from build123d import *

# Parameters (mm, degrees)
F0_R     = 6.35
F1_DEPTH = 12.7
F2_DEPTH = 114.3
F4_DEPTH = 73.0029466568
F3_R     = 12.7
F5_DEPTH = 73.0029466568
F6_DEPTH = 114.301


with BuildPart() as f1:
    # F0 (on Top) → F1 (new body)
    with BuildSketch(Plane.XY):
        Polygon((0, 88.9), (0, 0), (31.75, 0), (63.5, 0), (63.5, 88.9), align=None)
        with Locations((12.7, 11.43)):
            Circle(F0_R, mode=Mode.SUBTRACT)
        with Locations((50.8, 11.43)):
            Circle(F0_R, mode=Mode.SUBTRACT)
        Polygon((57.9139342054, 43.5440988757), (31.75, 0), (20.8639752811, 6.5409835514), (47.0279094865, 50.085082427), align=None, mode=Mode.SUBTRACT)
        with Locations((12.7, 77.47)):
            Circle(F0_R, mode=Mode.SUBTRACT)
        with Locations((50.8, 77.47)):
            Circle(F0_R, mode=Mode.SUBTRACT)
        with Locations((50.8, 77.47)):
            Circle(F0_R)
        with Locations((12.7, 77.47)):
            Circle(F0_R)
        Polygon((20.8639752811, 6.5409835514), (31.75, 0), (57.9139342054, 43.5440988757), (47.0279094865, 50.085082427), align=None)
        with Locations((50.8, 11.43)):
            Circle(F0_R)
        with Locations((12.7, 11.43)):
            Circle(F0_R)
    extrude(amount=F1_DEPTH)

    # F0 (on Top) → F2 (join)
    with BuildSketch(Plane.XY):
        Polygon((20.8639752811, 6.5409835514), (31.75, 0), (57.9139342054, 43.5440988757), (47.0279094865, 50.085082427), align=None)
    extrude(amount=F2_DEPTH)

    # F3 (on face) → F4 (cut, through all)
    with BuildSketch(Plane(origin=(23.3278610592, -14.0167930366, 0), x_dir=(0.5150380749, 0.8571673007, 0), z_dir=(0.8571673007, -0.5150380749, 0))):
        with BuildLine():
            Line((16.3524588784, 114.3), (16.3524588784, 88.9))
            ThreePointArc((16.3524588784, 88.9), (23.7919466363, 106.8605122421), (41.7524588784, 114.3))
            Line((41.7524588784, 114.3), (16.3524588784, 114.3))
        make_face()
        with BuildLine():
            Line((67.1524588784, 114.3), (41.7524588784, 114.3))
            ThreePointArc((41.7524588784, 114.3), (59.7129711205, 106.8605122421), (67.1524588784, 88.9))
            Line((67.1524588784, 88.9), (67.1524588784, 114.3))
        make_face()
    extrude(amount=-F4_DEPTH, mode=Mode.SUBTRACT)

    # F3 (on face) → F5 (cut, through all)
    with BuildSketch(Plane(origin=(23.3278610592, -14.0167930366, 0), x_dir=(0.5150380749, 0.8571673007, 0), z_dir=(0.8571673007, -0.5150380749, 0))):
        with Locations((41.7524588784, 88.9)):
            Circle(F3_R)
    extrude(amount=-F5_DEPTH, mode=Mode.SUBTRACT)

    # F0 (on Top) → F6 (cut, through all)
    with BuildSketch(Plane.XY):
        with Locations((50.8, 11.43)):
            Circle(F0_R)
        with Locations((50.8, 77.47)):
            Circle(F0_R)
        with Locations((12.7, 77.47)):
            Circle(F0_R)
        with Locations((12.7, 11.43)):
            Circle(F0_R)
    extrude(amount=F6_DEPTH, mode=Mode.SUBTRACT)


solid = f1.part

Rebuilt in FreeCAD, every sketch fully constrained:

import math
import FreeCAD as App
import Part
import Sketcher
Q = App.Units.Quantity

doc = App.newDocument("Part")
body = doc.addObject("PartDesign::Body", "Body")

# Sketch on XY plane
sketch1 = body.newObject("Sketcher::SketchObject", "Sketch")
sketch1.AttachmentSupport = (doc.getObject("XY_Plane"), [""])
sketch1.MapMode = "FlatFace"
sketch1.addGeometry(Part.LineSegment(App.Vector(0, 0, 0), App.Vector(64, 0, 0)), False)
sketch1.addGeometry(Part.LineSegment(App.Vector(64, 0, 0), App.Vector(64, 89, 0)), False)
sketch1.addGeometry(Part.LineSegment(App.Vector(64, 89, 0), App.Vector(0, 89, 0)), False)
sketch1.addGeometry(Part.LineSegment(App.Vector(0, 89, 0), App.Vector(0, 0, 0)), False)
sketch1.addConstraint(Sketcher.Constraint("Coincident", 0, 2, 1, 1))
sketch1.addConstraint(Sketcher.Constraint("Coincident", 1, 2, 2, 1))
sketch1.addConstraint(Sketcher.Constraint("Coincident", 2, 2, 3, 1))
sketch1.addConstraint(Sketcher.Constraint("Coincident", 3, 2, 0, 1))
sketch1.addConstraint(Sketcher.Constraint("Horizontal", 0))
sketch1.addConstraint(Sketcher.Constraint("Vertical", 1))
sketch1.addConstraint(Sketcher.Constraint("Horizontal", 2))
sketch1.addConstraint(Sketcher.Constraint("Vertical", 3))
sketch1.addConstraint(Sketcher.Constraint("Coincident", 3, 2, -1, 1))
sketch1.addConstraint(Sketcher.Constraint("DistanceX", 0, 1, 0, 2, Q("2.5 in")))
sketch1.addConstraint(Sketcher.Constraint("DistanceY", 1, 1, 1, 2, Q("3.5 in")))
pad1 = body.newObject("PartDesign::Pad", "Pad")
pad1.Profile = sketch1
pad1.Length = Q("0.5 in")

# Sketch on XY plane
sketch2 = body.newObject("Sketcher::SketchObject", "Sketch001")
sketch2.AttachmentSupport = (doc.getObject("XY_Plane"), [""])
sketch2.MapMode = "FlatFace"
sketch2.addGeometry(Part.LineSegment(App.Vector(21, 7, 0), App.Vector(32, 0, 0)), False)
sketch2.addGeometry(Part.LineSegment(App.Vector(32, 0, 0), App.Vector(58, 44, 0)), False)
sketch2.addGeometry(Part.LineSegment(App.Vector(58, 44, 0), App.Vector(47, 50, 0)), False)
sketch2.addGeometry(Part.LineSegment(App.Vector(47, 50, 0), App.Vector(21, 7, 0)), False)
sketch2.addConstraint(Sketcher.Constraint("Coincident", 0, 2, 1, 1))
sketch2.addConstraint(Sketcher.Constraint("Coincident", 1, 2, 2, 1))
sketch2.addConstraint(Sketcher.Constraint("Coincident", 2, 2, 3, 1))
sketch2.addConstraint(Sketcher.Constraint("Coincident", 3, 2, 0, 1))
sketch2.addConstraint(Sketcher.Constraint("PointOnObject", 0, 2, -1))
sketch2.addConstraint(Sketcher.Constraint("Perpendicular", 0, 1))
sketch2.addConstraint(Sketcher.Constraint("Perpendicular", 1, 2))
sketch2.addConstraint(Sketcher.Constraint("Perpendicular", 2, 3))
sketch2.addConstraint(Sketcher.Constraint("Distance", 1, Q("2 in")))
sketch2.addConstraint(Sketcher.Constraint("Angle", 0, Q("-31 deg")))
sketch2.addConstraint(Sketcher.Constraint("Distance", 0, Q("0.5 in")))
sketch2.addConstraint(Sketcher.Constraint("DistanceX", -1, 1, 0, 2, Q("1.25 in")))
pad2 = body.newObject("PartDesign::Pad", "Pad001")
pad2.Profile = sketch2
pad2.Length = Q("4.5 in")

# Sketch on an angled plane
sketch3 = body.newObject("Sketcher::SketchObject", "Sketch002")
sketch3.Placement = App.Placement(App.Vector(23.327861, -14.016793, 0), App.Rotation(App.Vector(0.515038075, 0.857167301, 0), App.Vector(0, 0, 1.000000001), App.Vector(0.857167301, -0.515038075, 0), "ZXY"))
sketch3.addGeometry(Part.LineSegment(App.Vector(16, 114, 0), App.Vector(16, 89, 0)), False)
sketch3.addGeometry(Part.ArcOfCircle(Part.Circle(App.Vector(42, 89, 0), App.Vector(0, 0, 1), 25), math.radians(90), math.radians(180)), False)
sketch3.addGeometry(Part.LineSegment(App.Vector(42, 114, 0), App.Vector(16, 114, 0)), False)
sketch3.addGeometry(Part.LineSegment(App.Vector(67, 114, 0), App.Vector(42, 114, 0)), False)
sketch3.addGeometry(Part.ArcOfCircle(Part.Circle(App.Vector(42, 89, 0), App.Vector(0, 0, 1), 25), math.radians(0), math.radians(90)), False)
sketch3.addGeometry(Part.LineSegment(App.Vector(67, 89, 0), App.Vector(67, 114, 0)), False)
sketch3.addConstraint(Sketcher.Constraint("Tangent", 0, 2, 1, 2))
sketch3.addConstraint(Sketcher.Constraint("Tangent", 1, 1, 2, 1))
sketch3.addConstraint(Sketcher.Constraint("Coincident", 2, 2, 0, 1))
sketch3.addConstraint(Sketcher.Constraint("Tangent", 3, 2, 4, 2))
sketch3.addConstraint(Sketcher.Constraint("Tangent", 4, 1, 5, 1))
sketch3.addConstraint(Sketcher.Constraint("Coincident", 5, 2, 3, 1))
sketch3.addConstraint(Sketcher.Constraint("Vertical", 0))
sketch3.addConstraint(Sketcher.Constraint("Horizontal", 2))
sketch3.addConstraint(Sketcher.Constraint("Horizontal", 3))
sketch3.addConstraint(Sketcher.Constraint("Vertical", 5))
sketch3.addConstraint(Sketcher.Constraint("Coincident", 4, 3, 1, 3))
sketch3.addConstraint(Sketcher.Constraint("Equal", 1, 4))
sketch3.addConstraint(Sketcher.Constraint("Radius", 1, Q("1 in")))
sketch3.addConstraint(Sketcher.Constraint("DistanceY", -1, 1, 1, 3, Q("3.5 in")))
sketch3.addConstraint(Sketcher.Constraint("DistanceX", -1, 1, 1, 3, Q("41.752459 mm")))
pocket1 = body.newObject("PartDesign::Pocket", "Pocket")
pocket1.Profile = sketch3
pocket1.Type = "ThroughAll"

# Sketch on an angled plane
sketch4 = body.newObject("Sketcher::SketchObject", "Sketch003")
sketch4.Placement = App.Placement(App.Vector(23.327861, -14.016793, 0), App.Rotation(App.Vector(0.515038075, 0.857167301, 0), App.Vector(0, 0, 1.000000001), App.Vector(0.857167301, -0.515038075, 0), "ZXY"))
sketch4.addGeometry(Part.Circle(App.Vector(42, 89, 0), App.Vector(0, 0, 1), 13), False)
sketch4.addConstraint(Sketcher.Constraint("Diameter", 0, Q("1 in")))
sketch4.addConstraint(Sketcher.Constraint("DistanceY", -1, 1, 0, 3, Q("3.5 in")))
sketch4.addConstraint(Sketcher.Constraint("DistanceX", -1, 1, 0, 3, Q("41.752459 mm")))
pocket2 = body.newObject("PartDesign::Pocket", "Pocket001")
pocket2.Profile = sketch4
pocket2.Type = "ThroughAll"

# Sketch on XY plane
sketch5 = body.newObject("Sketcher::SketchObject", "Sketch004")
sketch5.AttachmentSupport = (doc.getObject("XY_Plane"), [""])
sketch5.MapMode = "FlatFace"
sketch5.addGeometry(Part.Circle(App.Vector(51, 11, 0), App.Vector(0, 0, 1), 6), False)
sketch5.addGeometry(Part.Circle(App.Vector(51, 77, 0), App.Vector(0, 0, 1), 6), False)
sketch5.addGeometry(Part.Circle(App.Vector(13, 77, 0), App.Vector(0, 0, 1), 6), False)
sketch5.addGeometry(Part.Circle(App.Vector(13, 11, 0), App.Vector(0, 0, 1), 6), False)
sketch5.addConstraint(Sketcher.Constraint("Equal", 0, 1))
sketch5.addConstraint(Sketcher.Constraint("Equal", 1, 2))
sketch5.addConstraint(Sketcher.Constraint("Equal", 2, 3))
sketch5.addConstraint(Sketcher.Constraint("Horizontal", 1, 3, 2, 3))
sketch5.addConstraint(Sketcher.Constraint("Horizontal", 0, 3, 3, 3))
sketch5.addConstraint(Sketcher.Constraint("Vertical", 0, 3, 1, 3))
sketch5.addConstraint(Sketcher.Constraint("Vertical", 2, 3, 3, 3))
sketch5.addConstraint(Sketcher.Constraint("Diameter", 0, Q("0.5 in")))
sketch5.addConstraint(Sketcher.Constraint("DistanceX", -1, 1, 0, 3, Q("2 in")))
sketch5.addConstraint(Sketcher.Constraint("DistanceX", -1, 1, 2, 3, Q("0.5 in")))
sketch5.addConstraint(Sketcher.Constraint("DistanceY", 0, 3, 1, 3, Q("2.6 in")))
sketch5.addConstraint(Sketcher.Constraint("DistanceY", -1, 1, 0, 3, Q("0.45 in")))
pocket3 = body.newObject("PartDesign::Pocket", "Pocket002")
pocket3.Profile = sketch5
pocket3.Type = "ThroughAll"
pocket3.Reversed = True

doc.recompute()
